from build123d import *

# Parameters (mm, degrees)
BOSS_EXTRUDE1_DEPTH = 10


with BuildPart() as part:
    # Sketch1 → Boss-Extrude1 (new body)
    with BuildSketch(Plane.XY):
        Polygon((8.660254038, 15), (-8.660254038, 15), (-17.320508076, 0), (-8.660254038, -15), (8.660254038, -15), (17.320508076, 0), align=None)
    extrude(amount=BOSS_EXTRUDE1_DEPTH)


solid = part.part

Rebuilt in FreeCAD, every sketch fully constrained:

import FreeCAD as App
import Part
import Sketcher

V = App.Vector
Q = App.Units.Quantity

doc = App.newDocument("Part")
params = doc.addObject("Spreadsheet::Sheet", "Params")
for row, (alias, value) in enumerate([
    ("pad1_length", "10 mm"),
], start=1):
    params.set(f"A{row}", alias)
    params.set(f"B{row}", "=" + value)
    params.setAlias(f"B{row}", alias)

body = doc.addObject("PartDesign::Body", "Body")

# Sketch on XY plane
sketch1 = body.newObject("Sketcher::SketchObject", "Sketch")
sketch1.AttachmentSupport = (doc.getObject("XY_Plane"), [""])
sketch1.MapMode = "FlatFace"
sketch1.addGeometry(Part.LineSegment(V(9, 15, 0), V(-9, 15, 0)), False)
sketch1.addGeometry(Part.LineSegment(V(-9, 15, 0), V(-17, 0, 0)), False)
sketch1.addGeometry(Part.LineSegment(V(-17, 0, 0), V(-9, -15, 0)), False)
sketch1.addGeometry(Part.LineSegment(V(-9, -15, 0), V(9, -15, 0)), False)
sketch1.addGeometry(Part.LineSegment(V(9, -15, 0), V(17, 0, 0)), False)
sketch1.addGeometry(Part.LineSegment(V(17, 0, 0), V(9, 15, 0)), False)
sketch1.addConstraint(Sketcher.Constraint("Coincident", 0, 2, 1, 1))
sketch1.addConstraint(Sketcher.Constraint("Coincident", 1, 2, 2, 1))
sketch1.addConstraint(Sketcher.Constraint("Coincident", 2, 2, 3, 1))
sketch1.addConstraint(Sketcher.Constraint("Coincident", 3, 2, 4, 1))
sketch1.addConstraint(Sketcher.Constraint("Coincident", 4, 2, 5, 1))
sketch1.addConstraint(Sketcher.Constraint("Coincident", 5, 2, 0, 1))
sketch1.addConstraint(Sketcher.Constraint("Horizontal", 0))
sketch1.addConstraint(Sketcher.Constraint("Horizontal", 3))
sketch1.addConstraint(Sketcher.Constraint("Symmetric", 0, 2, 3, 2, -1, 1))
sketch1.addConstraint(Sketcher.Constraint("Symmetric", 1, 2, 4, 2, -1, 1))
sketch1.addConstraint(Sketcher.Constraint("PointOnObject", 1, 2, -1))
sketch1.addConstraint(Sketcher.Constraint("Parallel", 2, 5))
sketch1.addConstraint(Sketcher.Constraint("Vertical", 0, 2, 2, 2))
sketch1.addConstraint(Sketcher.Constraint("Angle", 1, Q("-120 deg")))
sketch1.addConstraint(Sketcher.Constraint("DistanceY", -1, 1, 0, 2, 15.0))
sketch1.addConstraint(Sketcher.Constraint("DistanceX", 0, 2, 0, 1, 17.320508))
pad1 = body.newObject("PartDesign::Pad", "Pad")
pad1.Profile = sketch1
pad1.setExpression("Length", "Params.pad1_length")

doc.recompute()
